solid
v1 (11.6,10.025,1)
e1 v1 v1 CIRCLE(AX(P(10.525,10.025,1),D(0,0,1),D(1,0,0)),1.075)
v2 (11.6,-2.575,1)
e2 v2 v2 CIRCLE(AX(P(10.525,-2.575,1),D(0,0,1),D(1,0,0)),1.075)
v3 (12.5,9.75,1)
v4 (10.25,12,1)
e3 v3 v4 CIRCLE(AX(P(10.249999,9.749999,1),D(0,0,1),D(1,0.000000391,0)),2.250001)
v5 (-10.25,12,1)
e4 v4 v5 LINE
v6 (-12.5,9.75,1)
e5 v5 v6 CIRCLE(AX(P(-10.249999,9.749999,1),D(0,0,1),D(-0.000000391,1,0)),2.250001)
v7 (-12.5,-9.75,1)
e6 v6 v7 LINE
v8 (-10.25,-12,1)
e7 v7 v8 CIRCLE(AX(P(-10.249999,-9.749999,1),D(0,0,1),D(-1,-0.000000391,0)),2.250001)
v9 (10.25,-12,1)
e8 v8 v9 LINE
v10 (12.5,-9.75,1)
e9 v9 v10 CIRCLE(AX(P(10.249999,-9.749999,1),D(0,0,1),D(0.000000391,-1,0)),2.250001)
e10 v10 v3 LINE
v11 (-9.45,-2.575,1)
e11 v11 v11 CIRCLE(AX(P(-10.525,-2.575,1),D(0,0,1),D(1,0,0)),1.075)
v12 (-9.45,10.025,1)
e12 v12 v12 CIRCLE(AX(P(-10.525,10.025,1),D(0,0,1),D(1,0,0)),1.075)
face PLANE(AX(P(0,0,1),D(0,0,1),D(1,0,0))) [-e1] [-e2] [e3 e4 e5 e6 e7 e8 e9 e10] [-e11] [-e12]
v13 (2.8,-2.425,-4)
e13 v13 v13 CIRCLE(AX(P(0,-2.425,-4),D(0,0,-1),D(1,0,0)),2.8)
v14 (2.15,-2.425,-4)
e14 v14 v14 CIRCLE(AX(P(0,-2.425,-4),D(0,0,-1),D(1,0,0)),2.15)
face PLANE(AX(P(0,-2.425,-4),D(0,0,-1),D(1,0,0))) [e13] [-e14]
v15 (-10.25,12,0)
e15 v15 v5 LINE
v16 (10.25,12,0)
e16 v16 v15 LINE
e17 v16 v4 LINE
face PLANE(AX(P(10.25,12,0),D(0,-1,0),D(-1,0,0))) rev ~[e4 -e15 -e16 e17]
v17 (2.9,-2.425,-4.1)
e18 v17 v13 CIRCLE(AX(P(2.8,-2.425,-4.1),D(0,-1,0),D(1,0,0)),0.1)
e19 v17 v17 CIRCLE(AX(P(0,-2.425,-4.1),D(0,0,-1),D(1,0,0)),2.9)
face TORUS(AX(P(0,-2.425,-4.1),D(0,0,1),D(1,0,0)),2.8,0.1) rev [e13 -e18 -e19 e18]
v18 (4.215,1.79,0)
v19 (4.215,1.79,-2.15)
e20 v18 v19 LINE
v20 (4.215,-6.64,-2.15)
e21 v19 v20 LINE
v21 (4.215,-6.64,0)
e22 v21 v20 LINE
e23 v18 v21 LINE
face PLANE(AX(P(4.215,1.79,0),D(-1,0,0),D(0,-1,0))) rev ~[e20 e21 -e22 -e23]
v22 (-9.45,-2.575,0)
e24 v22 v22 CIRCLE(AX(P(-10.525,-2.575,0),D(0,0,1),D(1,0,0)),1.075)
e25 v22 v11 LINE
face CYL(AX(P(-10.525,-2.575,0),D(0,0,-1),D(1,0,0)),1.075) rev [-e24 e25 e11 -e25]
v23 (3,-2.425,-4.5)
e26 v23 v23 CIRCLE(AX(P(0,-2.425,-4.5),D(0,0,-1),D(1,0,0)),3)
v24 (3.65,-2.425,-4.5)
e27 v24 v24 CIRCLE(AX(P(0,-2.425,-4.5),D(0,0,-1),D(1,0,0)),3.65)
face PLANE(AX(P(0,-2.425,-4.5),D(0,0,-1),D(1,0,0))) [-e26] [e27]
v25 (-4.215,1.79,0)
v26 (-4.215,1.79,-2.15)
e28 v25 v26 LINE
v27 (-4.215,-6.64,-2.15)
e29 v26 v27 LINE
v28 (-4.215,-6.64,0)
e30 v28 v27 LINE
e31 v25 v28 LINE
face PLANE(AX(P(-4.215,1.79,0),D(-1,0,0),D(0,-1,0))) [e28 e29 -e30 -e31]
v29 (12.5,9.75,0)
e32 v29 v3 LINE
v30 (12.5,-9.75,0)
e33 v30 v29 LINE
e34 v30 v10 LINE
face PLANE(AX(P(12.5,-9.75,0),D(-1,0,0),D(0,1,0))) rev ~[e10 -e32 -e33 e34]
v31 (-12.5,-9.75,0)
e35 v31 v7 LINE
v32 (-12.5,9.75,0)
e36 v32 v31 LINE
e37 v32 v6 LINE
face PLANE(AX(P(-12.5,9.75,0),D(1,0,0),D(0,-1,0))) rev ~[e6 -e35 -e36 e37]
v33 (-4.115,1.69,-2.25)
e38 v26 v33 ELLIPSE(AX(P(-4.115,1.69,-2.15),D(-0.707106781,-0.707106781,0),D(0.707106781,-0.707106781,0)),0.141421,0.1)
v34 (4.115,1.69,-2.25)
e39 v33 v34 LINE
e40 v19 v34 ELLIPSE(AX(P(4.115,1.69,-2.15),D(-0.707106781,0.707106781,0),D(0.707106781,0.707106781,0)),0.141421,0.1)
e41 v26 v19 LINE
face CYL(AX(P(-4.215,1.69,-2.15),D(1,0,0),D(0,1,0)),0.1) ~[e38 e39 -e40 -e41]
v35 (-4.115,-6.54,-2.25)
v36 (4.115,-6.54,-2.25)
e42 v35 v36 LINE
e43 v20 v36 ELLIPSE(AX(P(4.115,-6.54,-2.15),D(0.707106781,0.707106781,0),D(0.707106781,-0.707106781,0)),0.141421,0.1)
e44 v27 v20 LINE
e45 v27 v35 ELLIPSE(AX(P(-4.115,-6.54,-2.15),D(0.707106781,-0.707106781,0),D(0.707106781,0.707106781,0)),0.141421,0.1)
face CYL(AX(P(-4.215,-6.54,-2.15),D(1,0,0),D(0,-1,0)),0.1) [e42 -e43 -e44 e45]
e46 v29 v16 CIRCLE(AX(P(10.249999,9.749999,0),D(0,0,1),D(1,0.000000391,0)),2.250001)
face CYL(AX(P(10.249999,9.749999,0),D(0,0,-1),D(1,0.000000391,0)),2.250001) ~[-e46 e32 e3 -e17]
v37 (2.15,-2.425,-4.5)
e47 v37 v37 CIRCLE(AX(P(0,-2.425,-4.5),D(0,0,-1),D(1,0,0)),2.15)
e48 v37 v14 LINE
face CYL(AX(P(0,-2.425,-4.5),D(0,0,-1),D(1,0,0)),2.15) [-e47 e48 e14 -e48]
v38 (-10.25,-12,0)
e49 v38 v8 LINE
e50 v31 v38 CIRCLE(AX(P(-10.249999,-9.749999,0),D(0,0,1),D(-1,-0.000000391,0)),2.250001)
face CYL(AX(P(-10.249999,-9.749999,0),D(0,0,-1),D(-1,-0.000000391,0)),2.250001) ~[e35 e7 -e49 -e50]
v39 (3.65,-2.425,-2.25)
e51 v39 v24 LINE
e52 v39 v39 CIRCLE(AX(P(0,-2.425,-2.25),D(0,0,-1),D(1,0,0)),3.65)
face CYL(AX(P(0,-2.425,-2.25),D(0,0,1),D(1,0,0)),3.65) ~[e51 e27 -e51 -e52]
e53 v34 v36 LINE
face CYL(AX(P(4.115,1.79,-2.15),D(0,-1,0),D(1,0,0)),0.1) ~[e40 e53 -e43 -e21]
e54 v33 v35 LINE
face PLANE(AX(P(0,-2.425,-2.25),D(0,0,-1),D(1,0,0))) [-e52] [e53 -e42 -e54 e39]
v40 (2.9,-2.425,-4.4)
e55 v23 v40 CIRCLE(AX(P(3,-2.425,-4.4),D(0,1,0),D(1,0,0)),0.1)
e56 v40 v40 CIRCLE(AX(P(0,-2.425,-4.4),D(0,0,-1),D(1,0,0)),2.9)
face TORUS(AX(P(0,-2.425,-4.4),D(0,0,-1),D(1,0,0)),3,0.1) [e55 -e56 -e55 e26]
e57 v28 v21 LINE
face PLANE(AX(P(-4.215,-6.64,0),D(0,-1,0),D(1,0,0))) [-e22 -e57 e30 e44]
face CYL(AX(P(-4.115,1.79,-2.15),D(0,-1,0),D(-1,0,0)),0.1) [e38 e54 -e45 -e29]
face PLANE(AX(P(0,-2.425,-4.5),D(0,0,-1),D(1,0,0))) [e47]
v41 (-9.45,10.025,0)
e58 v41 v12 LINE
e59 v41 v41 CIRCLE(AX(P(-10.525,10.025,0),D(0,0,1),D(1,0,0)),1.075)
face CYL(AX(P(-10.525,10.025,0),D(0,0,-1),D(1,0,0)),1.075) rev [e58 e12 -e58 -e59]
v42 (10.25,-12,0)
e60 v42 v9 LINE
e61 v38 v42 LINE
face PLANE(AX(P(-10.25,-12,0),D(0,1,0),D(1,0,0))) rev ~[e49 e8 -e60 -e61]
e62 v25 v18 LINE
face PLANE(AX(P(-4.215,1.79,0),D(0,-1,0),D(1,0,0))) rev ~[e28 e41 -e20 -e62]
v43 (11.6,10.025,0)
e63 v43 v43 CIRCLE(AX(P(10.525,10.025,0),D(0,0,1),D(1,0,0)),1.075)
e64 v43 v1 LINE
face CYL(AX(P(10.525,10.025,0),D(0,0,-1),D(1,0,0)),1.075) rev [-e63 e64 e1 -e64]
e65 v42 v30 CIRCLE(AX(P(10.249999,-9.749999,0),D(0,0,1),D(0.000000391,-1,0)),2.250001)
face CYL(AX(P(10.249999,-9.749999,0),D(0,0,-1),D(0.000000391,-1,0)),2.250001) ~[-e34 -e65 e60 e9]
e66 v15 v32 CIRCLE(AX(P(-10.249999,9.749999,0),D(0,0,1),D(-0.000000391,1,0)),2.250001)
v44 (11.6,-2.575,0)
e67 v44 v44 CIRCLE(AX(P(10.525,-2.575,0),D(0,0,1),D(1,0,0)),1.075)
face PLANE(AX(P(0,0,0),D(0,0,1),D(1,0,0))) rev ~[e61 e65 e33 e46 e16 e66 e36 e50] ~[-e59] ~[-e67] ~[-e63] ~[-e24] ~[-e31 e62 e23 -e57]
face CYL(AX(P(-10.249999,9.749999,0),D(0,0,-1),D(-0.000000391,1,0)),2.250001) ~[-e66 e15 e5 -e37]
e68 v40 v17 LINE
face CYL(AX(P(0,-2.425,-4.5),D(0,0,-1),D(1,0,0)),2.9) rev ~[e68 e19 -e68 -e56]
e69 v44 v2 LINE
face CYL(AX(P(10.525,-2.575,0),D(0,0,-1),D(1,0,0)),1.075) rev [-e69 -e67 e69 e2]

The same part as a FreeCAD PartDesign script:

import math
import FreeCAD as App
import Part
import Sketcher


def edges_at(feature, points):
    """Names of the edges that pass closest to the given points."""
    edges = feature.Shape.Edges
    near = lambda p: min(range(len(edges)), key=lambda i: edges[i].distToShape(Part.Vertex(*p))[0])
    return sorted({f"Edge{near(p) + 1}" for p in points})

doc = App.newDocument("Part")
body = doc.addObject("PartDesign::Body", "Body")

sketch1 = body.newObject("Sketcher::SketchObject", "Sketch")
sketch1.AttachmentSupport = (doc.getObject("XY_Plane"), [""])
sketch1.MapMode = "FlatFace"
sketch1.addGeometry([
    Part.ArcOfCircle(Part.Circle(App.Vector(10.2, 9.7, 0), App.Vector(0, 0, 1), 2.3), math.radians(0), math.radians(90)),
    Part.LineSegment(App.Vector(10.2, 12, 0), App.Vector(-10.2, 12, 0)),
    Part.ArcOfCircle(Part.Circle(App.Vector(-10.2, 9.7, 0), App.Vector(0, 0, 1), 2.3), math.radians(90), math.radians(180)),
    Part.LineSegment(App.Vector(-12.5, 9.8, 0), App.Vector(-12.5, -9.8, 0)),
    Part.ArcOfCircle(Part.Circle(App.Vector(-10.2, -9.7, 0), App.Vector(0, 0, 1), 2.3), math.radians(-180), math.radians(-90)),
    Part.LineSegment(App.Vector(-10.2, -12, 0), App.Vector(10.2, -12, 0)),
    Part.ArcOfCircle(Part.Circle(App.Vector(10.2, -9.7, 0), App.Vector(0, 0, 1), 2.3), math.radians(-90), math.radians(0)),
    Part.LineSegment(App.Vector(12.5, -9.8, 0), App.Vector(12.5, 9.8, 0)),
    Part.Circle(App.Vector(-10.5, -2.6, 0), App.Vector(0, 0, 1), 1.1),
    Part.Circle(App.Vector(10.5, -2.6, 0), App.Vector(0, 0, 1), 1.1),
    Part.Circle(App.Vector(-10.5, 10, 0), App.Vector(0, 0, 1), 1.1),
    Part.Circle(App.Vector(10.5, 10, 0), App.Vector(0, 0, 1), 1.1),
], False)
sketch1.addConstraint([
    Sketcher.Constraint("Tangent", 0, 2, 1, 1),
    Sketcher.Constraint("Tangent", 1, 2, 2, 1),
    Sketcher.Constraint("Tangent", 2, 2, 3, 1),
    Sketcher.Constraint("Tangent", 3, 2, 4, 1),
    Sketcher.Constraint("Tangent", 4, 2, 5, 1),
    Sketcher.Constraint("Tangent", 5, 2, 6, 1),
    Sketcher.Constraint("Tangent", 6, 2, 7, 1),
    Sketcher.Constraint("Tangent", 7, 2, 0, 1),
    Sketcher.Constraint("Horizontal", 1),
    Sketcher.Constraint("Vertical", 3),
    Sketcher.Constraint("Horizontal", 5),
    Sketcher.Constraint("Vertical", 7),
    Sketcher.Constraint("Equal", 0, 2),
    Sketcher.Constraint("Equal", 2, 4),
    Sketcher.Constraint("Equal", 4, 6),
    Sketcher.Constraint("Equal", 8, 9),
    Sketcher.Constraint("Equal", 9, 10),
    Sketcher.Constraint("Equal", 10, 11),
    Sketcher.Constraint("Symmetric", 0, 3, 4, 3, -1, 1),
    Sketcher.Constraint("Symmetric", 8, 3, 9, 3, -2),
    Sketcher.Constraint("Symmetric", 10, 3, 11, 3, -2),
    Sketcher.Constraint("Vertical", 8, 3, 10, 3),
    Sketcher.Constraint("Diameter", 8, 2.15),
    Sketcher.Constraint("Radius", 0, 2.250001),
    Sketcher.Constraint("DistanceX", 1, 2, 1, 1, 20.5),
    Sketcher.Constraint("DistanceY", 3, 2, 3, 1, 19.5),
    Sketcher.Constraint("DistanceY", 8, 3, 10, 3, 12.6),
    Sketcher.Constraint("DistanceX", 8, 3, 9, 3, 21.05),
    Sketcher.Constraint("DistanceY", 8, 3, -1, 1, 2.575),
])
pad1 = body.newObject("PartDesign::Pad", "Pad")
pad1.Profile = sketch1
pad1.Length = 1

sketch2 = body.newObject("Sketcher::SketchObject", "Sketch001")
sketch2.AttachmentSupport = (doc.getObject("XY_Plane"), [""])
sketch2.MapMode = "FlatFace"
sketch2.addGeometry([
    Part.LineSegment(App.Vector(-4, -7, 0), App.Vector(-4, 2, 0)),
    Part.LineSegment(App.Vector(-4, 2, 0), App.Vector(4, 2, 0)),
    Part.LineSegment(App.Vector(4, 2, 0), App.Vector(4, -7, 0)),
    Part.LineSegment(App.Vector(4, -7, 0), App.Vector(-4, -7, 0)),
], False)
sketch2.addConstraint([
    Sketcher.Constraint("Coincident", 0, 2, 1, 1),
    Sketcher.Constraint("Coincident", 1, 2, 2, 1),
    Sketcher.Constraint("Coincident", 2, 2, 3, 1),
    Sketcher.Constraint("Coincident", 3, 2, 0, 1),
    Sketcher.Constraint("Vertical", 0),
    Sketcher.Constraint("Horizontal", 1),
    Sketcher.Constraint("Vertical", 2),
    Sketcher.Constraint("Horizontal", 3),
    Sketcher.Constraint("Equal", 3, 0),
    Sketcher.Constraint("DistanceX", 1, 1, 1, 2, 8.43),
    Sketcher.Constraint("DistanceY", -1, 1, 0, 2, 1.79),
    Sketcher.Constraint("DistanceX", 0, 2, -1, 1, 4.215),
])
pad2 = body.newObject("PartDesign::Pad", "Pad001")
pad2.Profile = sketch2
pad2.Length = 2.25
pad2.Reversed = True

sketch3 = body.newObject("Sketcher::SketchObject", "Sketch002")
sketch3.AttachmentSupport = (doc.getObject("XY_Plane"), [""])
sketch3.MapMode = "FlatFace"
sketch3.AttachmentOffset = App.Placement(App.Vector(0, 0, -2.25), App.Rotation())
sketch3.addGeometry(Part.Circle(App.Vector(0, -2.4, 0), App.Vector(0, 0, 1), 3.6), False)
sketch3.addConstraint([
    Sketcher.Constraint("PointOnObject", 0, 3, -2),
    Sketcher.Constraint("Diameter", 0, 7.3),
    Sketcher.Constraint("DistanceY", 0, 3, -1, 1, 2.425),
])
pad3 = body.newObject("PartDesign::Pad", "Pad002")
pad3.Profile = sketch3
pad3.Length = 2.25
pad3.Reversed = True

sketch4 = body.newObject("Sketcher::SketchObject", "Sketch003")
sketch4.AttachmentSupport = (doc.getObject("XY_Plane"), [""])
sketch4.MapMode = "FlatFace"
sketch4.AttachmentOffset = App.Placement(App.Vector(0, 0, -4.5), App.Rotation())
sketch4.addGeometry([
    Part.Circle(App.Vector(0, -2.4, 0), App.Vector(0, 0, 1), 2.9),
    Part.Circle(App.Vector(0, -2.4, 0), App.Vector(0, 0, 1), 2.1),
], False)
sketch4.addConstraint([
    Sketcher.Constraint("Coincident", 1, 3, 0, 3),
    Sketcher.Constraint("PointOnObject", 0, 3, -2),
    Sketcher.Constraint("Diameter", 0, 5.8),
    Sketcher.Constraint("Diameter", 1, 4.3),
    Sketcher.Constraint("DistanceY", 0, 3, -1, 1, 2.425),
])
pocket1 = body.newObject("PartDesign::Pocket", "Pocket")
pocket1.Profile = sketch4
pocket1.Length = 0.5
pocket1.Reversed = True
doc.recompute()

fillet = body.newObject("PartDesign::Fillet", "Fillet")
fillet.Base = (pocket1, edges_at(pocket1, [
    (-2.9, -2.425, -4),
    (-2.9, -2.425, -4.5),
    (0, 1.79, -2.25),
    (4.215, -2.425, -2.25),
    (0, -6.64, -2.25),
    (-4.215, -2.425, -2.25),
]))
fillet.Radius = 0.1

doc.recompute()
